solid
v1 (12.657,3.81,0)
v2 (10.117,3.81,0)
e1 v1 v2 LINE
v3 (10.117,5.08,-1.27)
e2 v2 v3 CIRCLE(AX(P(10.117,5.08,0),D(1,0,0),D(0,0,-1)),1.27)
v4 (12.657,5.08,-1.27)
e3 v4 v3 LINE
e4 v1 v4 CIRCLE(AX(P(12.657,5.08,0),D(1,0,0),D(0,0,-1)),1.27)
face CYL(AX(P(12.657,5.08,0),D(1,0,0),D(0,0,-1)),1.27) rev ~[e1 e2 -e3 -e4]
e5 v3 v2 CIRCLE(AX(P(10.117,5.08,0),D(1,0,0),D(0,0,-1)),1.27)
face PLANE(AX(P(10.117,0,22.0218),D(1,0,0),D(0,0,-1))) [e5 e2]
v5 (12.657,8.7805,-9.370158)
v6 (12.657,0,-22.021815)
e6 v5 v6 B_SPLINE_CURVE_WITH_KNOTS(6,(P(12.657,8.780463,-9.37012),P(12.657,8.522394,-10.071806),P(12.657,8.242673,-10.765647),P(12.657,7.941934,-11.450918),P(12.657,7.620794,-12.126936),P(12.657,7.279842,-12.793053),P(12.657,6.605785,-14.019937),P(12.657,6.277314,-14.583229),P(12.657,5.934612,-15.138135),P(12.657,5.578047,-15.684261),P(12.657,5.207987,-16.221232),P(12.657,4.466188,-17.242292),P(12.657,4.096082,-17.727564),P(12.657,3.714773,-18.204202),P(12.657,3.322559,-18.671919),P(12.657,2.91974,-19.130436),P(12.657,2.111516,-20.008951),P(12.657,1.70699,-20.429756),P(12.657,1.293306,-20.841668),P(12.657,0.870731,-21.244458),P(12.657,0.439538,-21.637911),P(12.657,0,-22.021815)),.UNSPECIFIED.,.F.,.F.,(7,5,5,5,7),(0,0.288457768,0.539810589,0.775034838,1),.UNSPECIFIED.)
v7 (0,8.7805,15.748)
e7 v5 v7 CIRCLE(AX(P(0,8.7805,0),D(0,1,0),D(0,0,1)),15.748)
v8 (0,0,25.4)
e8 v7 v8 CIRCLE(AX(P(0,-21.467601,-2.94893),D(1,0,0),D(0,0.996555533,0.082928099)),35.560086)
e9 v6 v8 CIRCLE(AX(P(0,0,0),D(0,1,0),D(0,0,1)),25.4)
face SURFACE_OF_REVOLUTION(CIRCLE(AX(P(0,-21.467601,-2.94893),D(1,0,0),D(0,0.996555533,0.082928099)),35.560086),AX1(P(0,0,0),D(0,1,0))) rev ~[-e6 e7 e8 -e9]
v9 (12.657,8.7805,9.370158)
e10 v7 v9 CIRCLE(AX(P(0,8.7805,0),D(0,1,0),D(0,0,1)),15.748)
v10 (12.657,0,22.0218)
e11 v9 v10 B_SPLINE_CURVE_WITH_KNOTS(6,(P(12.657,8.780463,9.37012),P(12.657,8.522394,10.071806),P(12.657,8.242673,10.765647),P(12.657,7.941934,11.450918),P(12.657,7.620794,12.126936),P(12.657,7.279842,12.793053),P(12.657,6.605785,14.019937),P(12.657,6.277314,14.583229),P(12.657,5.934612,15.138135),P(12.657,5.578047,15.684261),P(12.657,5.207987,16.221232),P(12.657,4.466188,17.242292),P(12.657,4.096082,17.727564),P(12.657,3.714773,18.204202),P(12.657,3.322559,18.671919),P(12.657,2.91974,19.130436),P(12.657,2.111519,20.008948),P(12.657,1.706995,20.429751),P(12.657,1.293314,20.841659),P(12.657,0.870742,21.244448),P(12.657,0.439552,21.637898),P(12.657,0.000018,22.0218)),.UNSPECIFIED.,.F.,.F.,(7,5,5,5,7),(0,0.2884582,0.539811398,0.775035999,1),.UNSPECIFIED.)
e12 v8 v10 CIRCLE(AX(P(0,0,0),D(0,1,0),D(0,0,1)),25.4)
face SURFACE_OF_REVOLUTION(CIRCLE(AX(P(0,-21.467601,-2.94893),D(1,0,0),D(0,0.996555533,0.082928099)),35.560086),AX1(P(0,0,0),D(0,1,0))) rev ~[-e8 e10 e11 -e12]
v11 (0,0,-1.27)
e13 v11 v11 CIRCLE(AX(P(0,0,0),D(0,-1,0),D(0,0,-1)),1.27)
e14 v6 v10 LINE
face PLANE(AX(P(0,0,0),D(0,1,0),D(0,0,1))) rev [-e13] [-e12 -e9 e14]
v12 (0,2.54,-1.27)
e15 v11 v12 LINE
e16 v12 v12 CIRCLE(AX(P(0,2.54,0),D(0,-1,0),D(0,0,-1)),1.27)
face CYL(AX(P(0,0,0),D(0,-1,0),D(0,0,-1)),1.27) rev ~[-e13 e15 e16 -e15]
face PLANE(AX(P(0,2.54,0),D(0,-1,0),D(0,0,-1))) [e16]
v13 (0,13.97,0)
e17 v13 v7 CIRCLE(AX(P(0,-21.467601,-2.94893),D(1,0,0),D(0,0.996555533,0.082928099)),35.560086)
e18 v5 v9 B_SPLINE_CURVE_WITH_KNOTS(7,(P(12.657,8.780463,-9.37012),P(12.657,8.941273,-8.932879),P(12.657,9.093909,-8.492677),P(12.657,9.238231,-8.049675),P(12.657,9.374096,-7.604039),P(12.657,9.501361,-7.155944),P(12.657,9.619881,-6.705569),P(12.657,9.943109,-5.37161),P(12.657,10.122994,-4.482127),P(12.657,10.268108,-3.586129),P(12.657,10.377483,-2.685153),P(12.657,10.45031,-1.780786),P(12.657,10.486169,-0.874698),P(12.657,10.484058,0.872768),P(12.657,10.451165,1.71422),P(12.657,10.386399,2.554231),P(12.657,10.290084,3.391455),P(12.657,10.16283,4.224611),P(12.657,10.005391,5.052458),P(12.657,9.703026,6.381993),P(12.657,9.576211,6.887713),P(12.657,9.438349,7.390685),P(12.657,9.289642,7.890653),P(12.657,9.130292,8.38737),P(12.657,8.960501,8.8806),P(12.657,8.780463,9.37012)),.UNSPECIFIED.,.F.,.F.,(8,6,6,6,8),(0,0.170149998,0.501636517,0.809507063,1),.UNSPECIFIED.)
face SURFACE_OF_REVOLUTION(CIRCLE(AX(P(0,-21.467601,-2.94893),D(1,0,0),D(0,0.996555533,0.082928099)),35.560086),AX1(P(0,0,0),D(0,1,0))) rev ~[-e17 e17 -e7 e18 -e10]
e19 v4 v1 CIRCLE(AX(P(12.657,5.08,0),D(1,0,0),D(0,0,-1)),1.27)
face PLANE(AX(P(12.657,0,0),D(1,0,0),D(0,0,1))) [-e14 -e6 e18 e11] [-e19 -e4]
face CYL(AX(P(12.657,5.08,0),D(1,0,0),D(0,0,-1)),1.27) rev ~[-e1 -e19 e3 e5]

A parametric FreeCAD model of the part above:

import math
import FreeCAD as App
import Part
import Sketcher

V = App.Vector
Q = App.Units.Quantity

doc = App.newDocument("Part")
body = doc.addObject("PartDesign::Body", "Body")

# Sketch on YZ plane
sketch1 = body.newObject("Sketcher::SketchObject", "Sketch")
sketch1.AttachmentSupport = (doc.getObject("YZ_Plane"), [""])
sketch1.MapMode = "FlatFace"
sketch1.addGeometry(Part.LineSegment(V(0, 0, 0), V(14, 0, 0)), False)
sketch1.addGeometry(Part.ArcOfCircle(Part.Circle(V(-21, -3, 0), V(0, 0, 1), 36), math.radians(5), math.radians(53)), False)
sketch1.addGeometry(Part.LineSegment(V(0, 25, 0), V(0, 0, 0)), False)
sketch1.addConstraint(Sketcher.Constraint("Coincident", 0, 2, 1, 1))
sketch1.addConstraint(Sketcher.Constraint("Coincident", 1, 2, 2, 1))
sketch1.addConstraint(Sketcher.Constraint("Coincident", 2, 2, 0, 1))
sketch1.addConstraint(Sketcher.Constraint("Horizontal", 0))
sketch1.addConstraint(Sketcher.Constraint("Vertical", 2))
sketch1.addConstraint(Sketcher.Constraint("Coincident", 2, 2, -1, 1))
sketch1.addConstraint(Sketcher.Constraint("Radius", 1, Q("1.4 in")))
sketch1.addConstraint(Sketcher.Constraint("DistanceY", 2, 2, 2, 1, Q("1 in")))
sketch1.addConstraint(Sketcher.Constraint("DistanceX", 0, 1, 0, 2, Q("0.55 in")))
revolution = body.newObject("PartDesign::Revolution", "Revolution")
revolution.Profile = sketch1
revolution.ReferenceAxis = (sketch1, ["H_Axis"])
revolution.Angle = 360

# Sketch on XZ plane
sketch2 = body.newObject("Sketcher::SketchObject", "Sketch001")
sketch2.AttachmentSupport = (doc.getObject("XZ_Plane"), [""])
sketch2.MapMode = "FlatFace"
sketch2.addGeometry(Part.Circle(V(0, 0, 0), V(0, 0, 1), 1.3), False)
sketch2.addConstraint(Sketcher.Constraint("Coincident", 0, 3, -1, 1))
sketch2.addConstraint(Sketcher.Constraint("Diameter", 0, Q("0.1 in")))
pocket1 = body.newObject("PartDesign::Pocket", "Pocket")
pocket1.Profile = sketch2
pocket1.Length = Q("0.1 in")

# Sketch on XZ plane
sketch3 = body.newObject("Sketcher::SketchObject", "Sketch002")
sketch3.AttachmentSupport = (doc.getObject("XZ_Plane"), [""])
sketch3.MapMode = "FlatFace"
sketch3.addGeometry(Part.LineSegment(V(13, 22, 0), V(13, -29, 0)), False)
sketch3.addGeometry(Part.LineSegment(V(13, -29, 0), V(28, -29, 0)), False)
sketch3.addGeometry(Part.LineSegment(V(28, -29, 0), V(28, 22, 0)), False)
sketch3.addGeometry(Part.LineSegment(V(28, 22, 0), V(13, 22, 0)), False)
sketch3.addConstraint(Sketcher.Constraint("Coincident", 0, 2, 1, 1))
sketch3.addConstraint(Sketcher.Constraint("Coincident", 1, 2, 2, 1))
sketch3.addConstraint(Sketcher.Constraint("Coincident", 2, 2, 3, 1))
sketch3.addConstraint(Sketcher.Constraint("Coincident", 3, 2, 0, 1))
sketch3.addConstraint(Sketcher.Constraint("Vertical", 0))
sketch3.addConstraint(Sketcher.Constraint("Horizontal", 1))
sketch3.addConstraint(Sketcher.Constraint("Vertical", 2))
sketch3.addConstraint(Sketcher.Constraint("Horizontal", 3))
sketch3.addConstraint(Sketcher.Constraint("DistanceY", -1, 1, 2, 2, Q("0.867 in")))
sketch3.addConstraint(Sketcher.Constraint("DistanceX", 1, 1, 1, 2, 14.8727))
sketch3.addConstraint(Sketcher.Constraint("DistanceY", 0, 2, 0, 1, 51.4666))
sketch3.addConstraint(Sketcher.Constraint("DistanceX", -1, 1, 0, 2, Q("0.4983 in")))
pocket2 = body.newObject("PartDesign::Pocket", "Pocket001")
pocket2.Profile = sketch3
pocket2.Length = Q("1 in")

# Sketch on YZ plane
sketch4 = body.newObject("Sketcher::SketchObject", "Sketch003")
sketch4.AttachmentSupport = (doc.getObject("YZ_Plane"), [""])
sketch4.MapMode = "FlatFace"
sketch4.AttachmentOffset = App.Placement(V(0, 0, 0.4983071 * 25.4), App.Rotation())
sketch4.addGeometry(Part.Circle(V(5.1, 0, 0), V(0, 0, 1), 1.3), False)
sketch4.addConstraint(Sketcher.Constraint("PointOnObject", 0, 3, -1))
sketch4.addConstraint(Sketcher.Constraint("Diameter", 0, Q("0.1 in")))
sketch4.addConstraint(Sketcher.Constraint("DistanceX", -1, 1, 0, 3, Q("0.2 in")))
pocket3 = body.newObject("PartDesign::Pocket", "Pocket002")
pocket3.Profile = sketch4
pocket3.Length = Q("0.1 in")

doc.recompute()
